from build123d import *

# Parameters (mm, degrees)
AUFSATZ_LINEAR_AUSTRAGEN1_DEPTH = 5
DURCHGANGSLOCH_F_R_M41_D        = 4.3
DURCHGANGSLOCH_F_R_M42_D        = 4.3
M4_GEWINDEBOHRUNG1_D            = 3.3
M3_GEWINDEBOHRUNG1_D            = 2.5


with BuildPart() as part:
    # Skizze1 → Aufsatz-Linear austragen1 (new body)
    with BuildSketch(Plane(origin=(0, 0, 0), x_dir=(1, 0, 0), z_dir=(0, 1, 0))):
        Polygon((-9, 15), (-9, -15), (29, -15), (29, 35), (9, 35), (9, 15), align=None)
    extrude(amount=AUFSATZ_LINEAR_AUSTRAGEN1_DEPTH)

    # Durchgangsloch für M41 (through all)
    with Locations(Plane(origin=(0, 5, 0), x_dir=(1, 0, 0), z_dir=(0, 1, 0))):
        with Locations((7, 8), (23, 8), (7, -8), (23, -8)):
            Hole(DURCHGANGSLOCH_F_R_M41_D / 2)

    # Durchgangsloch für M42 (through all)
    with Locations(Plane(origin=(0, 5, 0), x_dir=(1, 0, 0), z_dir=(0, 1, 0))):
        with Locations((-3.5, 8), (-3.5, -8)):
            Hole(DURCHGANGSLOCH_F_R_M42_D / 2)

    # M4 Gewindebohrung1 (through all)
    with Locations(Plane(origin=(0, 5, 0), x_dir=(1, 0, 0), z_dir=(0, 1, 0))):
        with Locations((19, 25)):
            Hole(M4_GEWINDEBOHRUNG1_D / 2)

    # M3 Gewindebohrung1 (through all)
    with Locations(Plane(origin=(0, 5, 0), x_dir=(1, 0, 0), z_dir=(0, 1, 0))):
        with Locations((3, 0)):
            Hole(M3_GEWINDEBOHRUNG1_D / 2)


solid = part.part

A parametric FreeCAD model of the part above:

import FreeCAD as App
import Part
import Sketcher

V = App.Vector
Q = App.Units.Quantity

doc = App.newDocument("Part")
params = doc.addObject("Spreadsheet::Sheet", "Params")
for row, (alias, value) in enumerate([
    ("sketch1_width", "38 mm"),
    ("sketch1_width2", "20 mm"),
    ("sketch1_height", "30 mm"),
    ("pad1_length", "5 mm"),
    ("sketch2_diameter", "4.3 mm"),
    ("hole_diameter", "4.3 mm"),
    ("sketch3_diameter", "4.3 mm"),
    ("hole2_diameter", "4.3 mm"),
    ("sketch4_diameter", "3.3 mm"),
    ("hole3_diameter", "3.3 mm"),
    ("sketch5_diameter", "2.5 mm"),
    ("hole4_diameter", "2.5 mm"),
], start=1):
    params.set(f"A{row}", alias)
    params.set(f"B{row}", "=" + value)
    params.setAlias(f"B{row}", alias)

body = doc.addObject("PartDesign::Body", "Body")

sketch1 = body.newObject("Sketcher::SketchObject", "Sketch")
sketch1.AttachmentSupport = (doc.getObject("XZ_Plane"), [""])
sketch1.MapMode = "FlatFace"
sketch1.addGeometry(Part.LineSegment(V(-9, -15, 0), V(-9, 15, 0)), False)
sketch1.addGeometry(Part.LineSegment(V(-9, 15, 0), V(29, 15, 0)), False)
sketch1.addGeometry(Part.LineSegment(V(29, 15, 0), V(29, -35, 0)), False)
sketch1.addGeometry(Part.LineSegment(V(29, -35, 0), V(9, -35, 0)), False)
sketch1.addGeometry(Part.LineSegment(V(9, -35, 0), V(9, -15, 0)), False)
sketch1.addGeometry(Part.LineSegment(V(9, -15, 0), V(-9, -15, 0)), False)
sketch1.addConstraint(Sketcher.Constraint("Coincident", 0, 2, 1, 1))
sketch1.addConstraint(Sketcher.Constraint("Coincident", 1, 2, 2, 1))
sketch1.addConstraint(Sketcher.Constraint("Coincident", 2, 2, 3, 1))
sketch1.addConstraint(Sketcher.Constraint("Coincident", 3, 2, 4, 1))
sketch1.addConstraint(Sketcher.Constraint("Coincident", 4, 2, 5, 1))
sketch1.addConstraint(Sketcher.Constraint("Coincident", 5, 2, 0, 1))
sketch1.addConstraint(Sketcher.Constraint("Vertical", 0))
sketch1.addConstraint(Sketcher.Constraint("Horizontal", 1))
sketch1.addConstraint(Sketcher.Constraint("Vertical", 2))
sketch1.addConstraint(Sketcher.Constraint("Horizontal", 3))
sketch1.addConstraint(Sketcher.Constraint("Vertical", 4))
sketch1.addConstraint(Sketcher.Constraint("Horizontal", 5))
sketch1.addConstraint(Sketcher.Constraint("Symmetric", 0, 2, 4, 2, -1, 1))
sketch1.addConstraint(Sketcher.Constraint("Equal", 3, 4))
sketch1.addConstraint(Sketcher.Constraint("DistanceX", 1, 1, 1, 2, Q("38 mm")))
sketch1.addConstraint(Sketcher.Constraint("DistanceX", 3, 2, 3, 1, Q("20 mm")))
sketch1.addConstraint(Sketcher.Constraint("DistanceY", 0, 1, 0, 2, Q("30 mm")))
sketch1.setExpression("Constraints[14]", "Params.sketch1_width")
sketch1.setExpression("Constraints[15]", "Params.sketch1_width2")
sketch1.setExpression("Constraints[16]", "Params.sketch1_height")
pad1 = body.newObject("PartDesign::Pad", "Pad")
pad1.Profile = sketch1
pad1.setExpression("Length", "Params.pad1_length")
pad1.Reversed = True

sketch2 = body.newObject("Sketcher::SketchObject", "Sketch001")
sketch2.AttachmentSupport = (doc.getObject("XZ_Plane"), [""])
sketch2.MapMode = "FlatFace"
sketch2.AttachmentOffset = App.Placement(V(0, 0, -5), App.Rotation())
sketch2.addGeometry(Part.Circle(V(7, -8, 0), V(0, 0, 1), 2.1), False)
sketch2.addGeometry(Part.Circle(V(23, -8, 0), V(0, 0, 1), 2.1), False)
sketch2.addGeometry(Part.Circle(V(7, 8, 0), V(0, 0, 1), 2.1), False)
sketch2.addGeometry(Part.Circle(V(23, 8, 0), V(0, 0, 1), 2.1), False)
sketch2.addConstraint(Sketcher.Constraint("Equal", 0, 1))
sketch2.addConstraint(Sketcher.Constraint("Equal", 1, 2))
sketch2.addConstraint(Sketcher.Constraint("Equal", 2, 3))
sketch2.addConstraint(Sketcher.Constraint("Symmetric", 0, 3, 2, 3, -1))
sketch2.addConstraint(Sketcher.Constraint("Symmetric", 1, 3, 3, 3, -1))
sketch2.addConstraint(Sketcher.Constraint("Horizontal", 0, 3, 1, 3))
sketch2.addConstraint(Sketcher.Constraint("Diameter", 0, Q("4.3 mm")))
sketch2.addConstraint(Sketcher.Constraint("DistanceX", -1, 1, 0, 3, Q("7 mm")))
sketch2.addConstraint(Sketcher.Constraint("DistanceY", 0, 3, -1, 1, Q("8 mm")))
sketch2.addConstraint(Sketcher.Constraint("DistanceX", -1, 1, 1, 3, Q("23 mm")))
sketch2.setExpression("Constraints[6]", "Params.sketch2_diameter")
doc.recompute()
hole = body.newObject("PartDesign::Hole", "Hole")
hole.Profile = sketch2
hole.ThreadType = "None"
hole.setExpression("Diameter", "Params.hole_diameter")
hole.DepthType = "ThroughAll"
hole.Reversed = True

sketch3 = body.newObject("Sketcher::SketchObject", "Sketch002")
sketch3.AttachmentSupport = (doc.getObject("XZ_Plane"), [""])
sketch3.MapMode = "FlatFace"
sketch3.AttachmentOffset = App.Placement(V(0, 0, -5), App.Rotation())
sketch3.addGeometry(Part.Circle(V(-3.5, -8, 0), V(0, 0, 1), 2.1), False)
sketch3.addGeometry(Part.Circle(V(-3.5, 8, 0), V(0, 0, 1), 2.1), False)
sketch3.addConstraint(Sketcher.Constraint("Equal", 0, 1))
sketch3.addConstraint(Sketcher.Constraint("Symmetric", 0, 3, 1, 3, -1))
sketch3.addConstraint(Sketcher.Constraint("Diameter", 0, Q("4.3 mm")))
sketch3.addConstraint(Sketcher.Constraint("DistanceY", 0, 3, -1, 1, Q("8 mm")))
sketch3.addConstraint(Sketcher.Constraint("DistanceX", 0, 3, -1, 1, Q("3.5 mm")))
sketch3.setExpression("Constraints[2]", "Params.sketch3_diameter")
doc.recompute()
hole2 = body.newObject("PartDesign::Hole", "Hole001")
hole2.Profile = sketch3
hole2.ThreadType = "None"
hole2.setExpression("Diameter", "Params.hole2_diameter")
hole2.DepthType = "ThroughAll"
hole2.Reversed = True

sketch4 = body.newObject("Sketcher::SketchObject", "Sketch003")
sketch4.AttachmentSupport = (doc.getObject("XZ_Plane"), [""])
sketch4.MapMode = "FlatFace"
sketch4.AttachmentOffset = App.Placement(V(0, 0, -5), App.Rotation())
sketch4.addGeometry(Part.Circle(V(19, -25, 0), V(0, 0, 1), 1.6), False)
sketch4.addConstraint(Sketcher.Constraint("Diameter", 0, Q("3.3 mm")))
sketch4.addConstraint(Sketcher.Constraint("DistanceX", -1, 1, 0, 3, Q("19 mm")))
sketch4.addConstraint(Sketcher.Constraint("DistanceY", 0, 3, -1, 1, Q("25 mm")))
sketch4.setExpression("Constraints[0]", "Params.sketch4_diameter")
doc.recompute()
hole3 = body.newObject("PartDesign::Hole", "Hole002")
hole3.Profile = sketch4
hole3.ThreadType = "None"
hole3.setExpression("Diameter", "Params.hole3_diameter")
hole3.DepthType = "ThroughAll"
hole3.Reversed = True

sketch5 = body.newObject("Sketcher::SketchObject", "Sketch004")
sketch5.AttachmentSupport = (doc.getObject("XZ_Plane"), [""])
sketch5.MapMode = "FlatFace"
sketch5.AttachmentOffset = App.Placement(V(0, 0, -5), App.Rotation())
sketch5.addGeometry(Part.Circle(V(3, 0, 0), V(0, 0, 1), 1.2), False)
sketch5.addConstraint(Sketcher.Constraint("PointOnObject", 0, 3, -1))
sketch5.addConstraint(Sketcher.Constraint("Diameter", 0, Q("2.5 mm")))
sketch5.addConstraint(Sketcher.Constraint("DistanceX", -1, 1, 0, 3, Q("3 mm")))
sketch5.setExpression("Constraints[1]", "Params.sketch5_diameter")
doc.recompute()
hole4 = body.newObject("PartDesign::Hole", "Hole003")
hole4.Profile = sketch5
hole4.ThreadType = "None"
hole4.setExpression("Diameter", "Params.hole4_diameter")
hole4.DepthType = "ThroughAll"
hole4.Reversed = True

doc.recompute()
